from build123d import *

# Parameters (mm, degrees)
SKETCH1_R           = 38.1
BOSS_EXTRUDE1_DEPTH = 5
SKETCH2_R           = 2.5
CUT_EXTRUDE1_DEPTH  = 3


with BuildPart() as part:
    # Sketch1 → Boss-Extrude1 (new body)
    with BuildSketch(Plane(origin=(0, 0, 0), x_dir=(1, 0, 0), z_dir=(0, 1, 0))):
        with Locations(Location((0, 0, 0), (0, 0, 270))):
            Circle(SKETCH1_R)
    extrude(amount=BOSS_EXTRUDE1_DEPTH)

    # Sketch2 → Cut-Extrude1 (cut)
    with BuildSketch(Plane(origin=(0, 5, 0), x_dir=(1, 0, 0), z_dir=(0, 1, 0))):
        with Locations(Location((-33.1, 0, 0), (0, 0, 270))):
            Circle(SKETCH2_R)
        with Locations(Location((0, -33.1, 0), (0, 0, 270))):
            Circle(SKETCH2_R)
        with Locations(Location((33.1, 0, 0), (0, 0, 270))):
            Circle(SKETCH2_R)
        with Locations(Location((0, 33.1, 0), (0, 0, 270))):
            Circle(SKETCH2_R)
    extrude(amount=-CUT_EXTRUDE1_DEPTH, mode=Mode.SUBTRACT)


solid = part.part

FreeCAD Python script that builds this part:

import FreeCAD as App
import Part
import Sketcher

doc = App.newDocument("Part")
body = doc.addObject("PartDesign::Body", "Body")

# Sketch on XZ plane
sketch1 = doc.addObject("Sketcher::SketchObject", "Sketch")
body.addObject(sketch1)
sketch1.AttachmentSupport = (doc.XZ_Plane, [""])
sketch1.MapMode = "FlatFace"
sketch1.addGeometry(Part.Circle(App.Vector(0, 0, 0), App.Vector(0, 0, 1), 38.1), False)
sketch1.addConstraint([
    Sketcher.Constraint("Coincident", 0, 3, -1, 1),
    Sketcher.Constraint("Diameter", 0, 76.2),
])
pad1 = doc.addObject("PartDesign::Pad", "Pad")
body.addObject(pad1)
pad1.Profile = sketch1
pad1.Length = 5
pad1.Reversed = True

# Sketch on XZ plane
sketch2 = doc.addObject("Sketcher::SketchObject", "Sketch001")
body.addObject(sketch2)
sketch2.AttachmentSupport = (doc.XZ_Plane, [""])
sketch2.MapMode = "FlatFace"
sketch2.AttachmentOffset = App.Placement(App.Vector(0, 0, -5), App.Rotation())
sketch2.addGeometry([
    Part.Circle(App.Vector(-33.1, 0, 0), App.Vector(0, 0, 1), 2.5),
    Part.Circle(App.Vector(0, 33.1, 0), App.Vector(0, 0, 1), 2.5),
    Part.Circle(App.Vector(33.1, 0, 0), App.Vector(0, 0, 1), 2.5),
    Part.Circle(App.Vector(0, -33.1, 0), App.Vector(0, 0, 1), 2.5),
], False)
sketch2.addConstraint([
    Sketcher.Constraint("Equal", 0, 1),
    Sketcher.Constraint("Equal", 1, 2),
    Sketcher.Constraint("Equal", 2, 3),
    Sketcher.Constraint("Symmetric", 0, 3, 2, 3, -1, 1),
    Sketcher.Constraint("Symmetric", 1, 3, 3, 3, -1, 1),
    Sketcher.Constraint("PointOnObject", 0, 3, -1),
    Sketcher.Constraint("PointOnObject", 1, 3, -2),
    Sketcher.Constraint("Diameter", 0, 5.0),
    Sketcher.Constraint("DistanceX", 0, 3, -1, 1, 33.1),
    Sketcher.Constraint("DistanceY", -1, 1, 1, 3, 33.1),
])
pocket1 = doc.addObject("PartDesign::Pocket", "Pocket")
body.addObject(pocket1)
pocket1.Profile = sketch2
pocket1.Length = 3
pocket1.Reversed = True

doc.recompute()
